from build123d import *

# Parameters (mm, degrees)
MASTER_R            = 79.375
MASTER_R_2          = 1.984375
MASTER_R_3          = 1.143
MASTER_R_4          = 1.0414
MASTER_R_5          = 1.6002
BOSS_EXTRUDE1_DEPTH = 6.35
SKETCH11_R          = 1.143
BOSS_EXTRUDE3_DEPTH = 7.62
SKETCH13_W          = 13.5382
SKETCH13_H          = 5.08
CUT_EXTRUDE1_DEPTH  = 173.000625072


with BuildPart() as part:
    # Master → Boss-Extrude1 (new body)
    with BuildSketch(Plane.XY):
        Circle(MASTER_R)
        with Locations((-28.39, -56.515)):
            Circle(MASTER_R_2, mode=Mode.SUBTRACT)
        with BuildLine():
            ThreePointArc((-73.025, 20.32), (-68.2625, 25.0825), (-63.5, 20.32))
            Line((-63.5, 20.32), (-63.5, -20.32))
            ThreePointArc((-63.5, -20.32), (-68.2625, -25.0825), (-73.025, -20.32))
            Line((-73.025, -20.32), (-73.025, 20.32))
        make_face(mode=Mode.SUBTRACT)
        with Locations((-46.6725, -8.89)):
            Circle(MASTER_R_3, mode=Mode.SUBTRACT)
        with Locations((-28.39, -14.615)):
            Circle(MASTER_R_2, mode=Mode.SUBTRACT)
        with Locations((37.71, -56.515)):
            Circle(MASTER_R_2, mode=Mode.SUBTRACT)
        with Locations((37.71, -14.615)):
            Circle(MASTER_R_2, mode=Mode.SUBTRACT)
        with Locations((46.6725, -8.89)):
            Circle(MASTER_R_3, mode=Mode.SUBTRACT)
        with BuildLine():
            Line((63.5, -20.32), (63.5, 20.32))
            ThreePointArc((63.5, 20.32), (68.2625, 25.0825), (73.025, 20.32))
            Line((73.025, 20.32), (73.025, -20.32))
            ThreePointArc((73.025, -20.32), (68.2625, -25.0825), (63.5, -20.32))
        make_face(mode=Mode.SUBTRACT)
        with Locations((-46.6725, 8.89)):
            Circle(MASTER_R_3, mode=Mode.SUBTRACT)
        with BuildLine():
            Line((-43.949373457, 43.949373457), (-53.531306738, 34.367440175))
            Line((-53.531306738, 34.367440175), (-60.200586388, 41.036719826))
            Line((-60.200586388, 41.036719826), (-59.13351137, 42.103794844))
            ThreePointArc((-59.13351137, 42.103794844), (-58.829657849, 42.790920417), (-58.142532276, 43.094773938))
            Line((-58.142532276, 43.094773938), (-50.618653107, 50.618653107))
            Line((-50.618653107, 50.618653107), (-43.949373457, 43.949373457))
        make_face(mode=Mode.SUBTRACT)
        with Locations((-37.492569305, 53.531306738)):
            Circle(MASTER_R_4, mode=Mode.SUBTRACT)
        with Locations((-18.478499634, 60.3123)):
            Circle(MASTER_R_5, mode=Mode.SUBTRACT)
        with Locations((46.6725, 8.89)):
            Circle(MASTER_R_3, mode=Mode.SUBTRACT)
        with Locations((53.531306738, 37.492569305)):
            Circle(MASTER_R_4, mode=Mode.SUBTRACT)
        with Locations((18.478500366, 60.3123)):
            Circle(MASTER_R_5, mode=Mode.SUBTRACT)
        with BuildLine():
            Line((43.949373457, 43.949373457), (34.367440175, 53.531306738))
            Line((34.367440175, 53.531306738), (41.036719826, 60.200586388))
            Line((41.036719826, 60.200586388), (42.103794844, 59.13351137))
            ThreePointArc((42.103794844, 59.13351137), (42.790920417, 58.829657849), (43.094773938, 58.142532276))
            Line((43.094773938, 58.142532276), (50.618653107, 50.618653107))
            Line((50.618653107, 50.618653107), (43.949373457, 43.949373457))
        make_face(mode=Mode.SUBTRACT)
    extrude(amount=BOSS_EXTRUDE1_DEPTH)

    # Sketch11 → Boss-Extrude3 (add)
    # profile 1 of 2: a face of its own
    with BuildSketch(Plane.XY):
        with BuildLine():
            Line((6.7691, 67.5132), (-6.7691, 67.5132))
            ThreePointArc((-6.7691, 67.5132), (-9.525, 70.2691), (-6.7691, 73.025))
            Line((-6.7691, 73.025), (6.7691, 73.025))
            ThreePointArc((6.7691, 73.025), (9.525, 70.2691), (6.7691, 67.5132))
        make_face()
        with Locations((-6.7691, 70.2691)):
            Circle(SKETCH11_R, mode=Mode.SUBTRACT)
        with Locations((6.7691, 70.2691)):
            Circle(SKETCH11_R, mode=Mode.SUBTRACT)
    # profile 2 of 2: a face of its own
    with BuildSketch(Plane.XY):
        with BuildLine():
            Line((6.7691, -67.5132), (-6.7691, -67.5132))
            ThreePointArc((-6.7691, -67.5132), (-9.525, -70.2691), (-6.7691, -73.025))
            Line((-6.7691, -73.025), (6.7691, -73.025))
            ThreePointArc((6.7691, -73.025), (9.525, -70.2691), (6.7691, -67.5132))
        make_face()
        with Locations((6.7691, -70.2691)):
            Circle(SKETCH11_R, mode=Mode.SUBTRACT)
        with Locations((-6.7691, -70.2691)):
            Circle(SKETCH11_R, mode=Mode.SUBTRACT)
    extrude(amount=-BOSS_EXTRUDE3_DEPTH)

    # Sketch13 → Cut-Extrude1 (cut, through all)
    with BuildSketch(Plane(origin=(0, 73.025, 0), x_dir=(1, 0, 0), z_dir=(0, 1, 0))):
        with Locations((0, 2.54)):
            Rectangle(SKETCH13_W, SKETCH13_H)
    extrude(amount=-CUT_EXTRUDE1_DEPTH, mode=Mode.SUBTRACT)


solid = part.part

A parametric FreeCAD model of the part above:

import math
import FreeCAD as App
import Part
import Sketcher

V = App.Vector
Q = App.Units.Quantity

doc = App.newDocument("Part")
params = doc.addObject("Spreadsheet::Sheet", "Params")
for row, (alias, value) in enumerate([
    ("sketch1_diameter", "6.25 in"),
    ("sketch1_diameter2", "0.09 in"),
    ("sketch1_diameter3", "0.15625 in"),
    ("sketch1_diameter4", "0.082 in"),
    ("sketch1_diameter5", "0.126 in"),
    ("pad1_length", "0.25 in"),
    ("sketch2_diameter", "0.09 in"),
    ("sketch2_width", "0.533 in"),
    ("pad2_length", "0.3 in"),
    ("sketch3_height", "0.2 in"),
    ("sketch3_width", "0.533 in"),
], start=1):
    params.set(f"A{row}", alias)
    params.set(f"B{row}", "=" + value)
    params.setAlias(f"B{row}", alias)

body = doc.addObject("PartDesign::Body", "Body")

sketch1 = body.newObject("Sketcher::SketchObject", "Sketch")
sketch1.AttachmentSupport = (doc.getObject("XY_Plane"), [""])
sketch1.MapMode = "FlatFace"
sketch1.addGeometry([
    Part.Circle(V(0, 0, 0), V(0, 0, 1), 79.4),
    Part.Circle(V(-28.4, -56.5, 0), V(0, 0, 1), 2),
    Part.LineSegment(V(-73, -20.3, 0), V(-73, 20.3, 0)),
    Part.ArcOfCircle(Part.Circle(V(-68.3, 20.3, 0), V(0, 0, 1), 4.8), math.radians(0), math.radians(180)),
    Part.LineSegment(V(-63.5, 20.3, 0), V(-63.5, -20.3, 0)),
    Part.ArcOfCircle(Part.Circle(V(-68.3, -20.3, 0), V(0, 0, 1), 4.8), math.radians(180), math.radians(360)),
    Part.Circle(V(-46.7, -8.9, 0), V(0, 0, 1), 1.1),
    Part.Circle(V(-28.4, -14.6, 0), V(0, 0, 1), 2),
    Part.Circle(V(37.7, -56.5, 0), V(0, 0, 1), 2),
    Part.Circle(V(37.7, -14.6, 0), V(0, 0, 1), 2),
    Part.Circle(V(46.7, -8.9, 0), V(0, 0, 1), 1.1),
    Part.ArcOfCircle(Part.Circle(V(68.3, -20.3, 0), V(0, 0, 1), 4.8), math.radians(180), math.radians(360)),
    Part.LineSegment(V(63.5, -20.3, 0), V(63.5, 20.3, 0)),
    Part.ArcOfCircle(Part.Circle(V(68.3, 20.3, 0), V(0, 0, 1), 4.8), math.radians(0), math.radians(180)),
    Part.LineSegment(V(73, 20.3, 0), V(73, -20.3, 0)),
    Part.Circle(V(-46.7, 8.9, 0), V(0, 0, 1), 1.1),
    Part.LineSegment(V(-50.6, 50.6, 0), V(-43.9, 43.9, 0)),
    Part.LineSegment(V(-43.9, 43.9, 0), V(-53.5, 34.4, 0)),
    Part.LineSegment(V(-53.5, 34.4, 0), V(-60.2, 41, 0)),
    Part.LineSegment(V(-60.2, 41, 0), V(-59.1, 42.1, 0)),
    Part.ArcOfCircle(Part.Circle(V(-58.1, 42.1, 0), V(0, 0, 1), 1), math.radians(93), math.radians(177)),
    Part.LineSegment(V(-58.1, 43.1, 0), V(-50.6, 50.6, 0)),
    Part.Circle(V(-37.5, 53.5, 0), V(0, 0, 1), 1),
    Part.Circle(V(-18.5, 60.3, 0), V(0, 0, 1), 1.6),
    Part.Circle(V(46.7, 8.9, 0), V(0, 0, 1), 1.1),
    Part.Circle(V(18.5, 60.3, 0), V(0, 0, 1), 1.6),
    Part.Circle(V(53.5, 37.5, 0), V(0, 0, 1), 1),
    Part.LineSegment(V(50.6, 50.6, 0), V(43.9, 43.9, 0)),
    Part.LineSegment(V(43.9, 43.9, 0), V(34.4, 53.5, 0)),
    Part.LineSegment(V(34.4, 53.5, 0), V(41, 60.2, 0)),
    Part.LineSegment(V(41, 60.2, 0), V(42.1, 59.1, 0)),
    Part.ArcOfCircle(Part.Circle(V(42.1, 58.1, 0), V(0, 0, 1), 1), math.radians(3), math.radians(87)),
    Part.LineSegment(V(43.1, 58.1, 0), V(50.6, 50.6, 0)),
], False)
sketch1.addConstraint([
    Sketcher.Constraint("Tangent", 2, 2, 3, 2),
    Sketcher.Constraint("Tangent", 3, 1, 4, 1),
    Sketcher.Constraint("Tangent", 4, 2, 5, 2),
    Sketcher.Constraint("Tangent", 5, 1, 2, 1),
    Sketcher.Constraint("Tangent", 11, 1, 12, 1),
    Sketcher.Constraint("Tangent", 12, 2, 13, 2),
    Sketcher.Constraint("Tangent", 13, 1, 14, 1),
    Sketcher.Constraint("Tangent", 14, 2, 11, 2),
    Sketcher.Constraint("Coincident", 16, 2, 17, 1),
    Sketcher.Constraint("Coincident", 17, 2, 18, 1),
    Sketcher.Constraint("Coincident", 18, 2, 19, 1),
    Sketcher.Constraint("Coincident", 19, 2, 20, 2),
    Sketcher.Constraint("Coincident", 20, 1, 21, 1),
    Sketcher.Constraint("Coincident", 21, 2, 16, 1),
    Sketcher.Constraint("Coincident", 27, 2, 28, 1),
    Sketcher.Constraint("Coincident", 28, 2, 29, 1),
    Sketcher.Constraint("Coincident", 29, 2, 30, 1),
    Sketcher.Constraint("Coincident", 30, 2, 31, 2),
    Sketcher.Constraint("Coincident", 31, 1, 32, 1),
    Sketcher.Constraint("Coincident", 32, 2, 27, 1),
    Sketcher.Constraint("Vertical", 2),
    Sketcher.Constraint("Vertical", 4),
    Sketcher.Constraint("Vertical", 12),
    Sketcher.Constraint("Vertical", 14),
    Sketcher.Constraint("Coincident", 0, 3, -1, 1),
    Sketcher.Constraint("Equal", 1, 7),
    Sketcher.Constraint("Equal", 7, 8),
    Sketcher.Constraint("Equal", 8, 9),
    Sketcher.Constraint("Equal", 6, 10),
    Sketcher.Constraint("Equal", 5, 11),
    Sketcher.Constraint("Equal", 10, 15),
    Sketcher.Constraint("Equal", 20, 22),
    Sketcher.Constraint("Equal", 15, 24),
    Sketcher.Constraint("Equal", 23, 25),
    Sketcher.Constraint("Equal", 22, 26),
    Sketcher.Constraint("Equal", 26, 31),
    Sketcher.Constraint("Symmetric", 3, 3, 11, 3, -1, 1),
    Sketcher.Constraint("Symmetric", 10, 3, 15, 3, -1, 1),
    Sketcher.Constraint("Symmetric", 6, 3, 24, 3, -1, 1),
    Sketcher.Constraint("Symmetric", 6, 3, 10, 3, -2),
    Sketcher.Constraint("Symmetric", 23, 3, 25, 3, -2),
    Sketcher.Constraint("Symmetric", 16, 2, 27, 2, -2),
    Sketcher.Constraint("Symmetric", 21, 2, 32, 2, -2),
    Sketcher.Constraint("Perpendicular", 16, 17),
    Sketcher.Constraint("Perpendicular", 17, 18),
    Sketcher.Constraint("Perpendicular", 18, 19),
    Sketcher.Constraint("Parallel", 19, 21),
    Sketcher.Constraint("Parallel", 21, 27),
    Sketcher.Constraint("Perpendicular", 27, 28),
    Sketcher.Constraint("Perpendicular", 28, 29),
    Sketcher.Constraint("Perpendicular", 29, 30),
    Sketcher.Constraint("Parallel", 30, 32),
    Sketcher.Constraint("Horizontal", 1, 3, 8, 3),
    Sketcher.Constraint("Horizontal", 7, 3, 9, 3),
    Sketcher.Constraint("Horizontal", 5, 3, 11, 3),
    Sketcher.Constraint("Horizontal", 3, 3, 13, 3),
    Sketcher.Constraint("Horizontal", 22, 3, 28, 2),
    Sketcher.Constraint("Vertical", 1, 3, 7, 3),
    Sketcher.Constraint("Vertical", 8, 3, 9, 3),
    Sketcher.Constraint("Equal", 16, 18),
    Sketcher.Constraint("Equal", 17, 28),
    Sketcher.Constraint("Equal", 27, 29),
    Sketcher.Constraint("Equal", 19, 30),
    Sketcher.Constraint("Equal", 21, 32),
    Sketcher.Constraint("Diameter", 0, Q("6.25 in")),
    Sketcher.Constraint("Diameter", 6, Q("0.09 in")),
    Sketcher.Constraint("Diameter", 1, Q("0.15625 in")),
    Sketcher.Constraint("Diameter", 22, Q("0.082 in")),
    Sketcher.Constraint("Diameter", 23, Q("0.126 in")),
    Sketcher.Constraint("DistanceY", 2, 1, 2, 2, Q("1.6 in")),
    Sketcher.Constraint("Radius", 3, Q("0.1875 in")),
    Sketcher.Constraint("DistanceX", 3, 1, -1, 1, Q("2.5 in")),
    Sketcher.Constraint("DistanceY", 6, 3, 15, 3, Q("0.7 in")),
    Sketcher.Constraint("DistanceX", 5, 3, 6, 3, Q("0.85 in")),
    Sketcher.Constraint("DistanceX", 15, 3, 23, 3, Q("1.11 in")),
    Sketcher.Constraint("DistanceY", 1, 3, -1, 1, Q("2.225 in")),
    Sketcher.Constraint("Distance", 17, Q("0.5335 in")),
    Sketcher.Constraint("DistanceY", -1, 1, 23, 3, Q("2.3745 in")),
    Sketcher.Constraint("DistanceX", 1, 3, -1, 1, Q("28.39 mm")),
    Sketcher.Constraint("DistanceY", 7, 3, -1, 1, Q("14.615 mm")),
    Sketcher.Constraint("DistanceX", -1, 1, 8, 3, Q("37.71 mm")),
    Sketcher.Constraint("DistanceY", 17, 2, 20, 3, Q("7.687099 mm")),
    Sketcher.Constraint("DistanceY", 20, 1, 16, 2, Q("0.8546 mm")),
    Sketcher.Constraint("Distance", 19, Q("1.509072 mm")),
    Sketcher.Constraint("DistanceY", -1, 1, 20, 3, Q("42.054539 mm")),
    Sketcher.Constraint("DistanceX", 22, 3, -1, 1, Q("37.492569 mm")),
    Sketcher.Constraint("DistanceY", -1, 1, 26, 3, Q("37.492569 mm")),
    Sketcher.Constraint("DistanceX", -1, 1, 31, 3, Q("42.054539 mm")),
    Sketcher.Constraint("DistanceX", -1, 1, 26, 3, Q("53.531307 mm")),
])
sketch1.setExpression("Constraints[64]", "Params.sketch1_diameter")
sketch1.setExpression("Constraints[65]", "Params.sketch1_diameter2")
sketch1.setExpression("Constraints[66]", "Params.sketch1_diameter3")
sketch1.setExpression("Constraints[67]", "Params.sketch1_diameter4")
sketch1.setExpression("Constraints[68]", "Params.sketch1_diameter5")
pad1 = body.newObject("PartDesign::Pad", "Pad")
pad1.Profile = sketch1
pad1.setExpression("Length", "Params.pad1_length")

sketch2 = body.newObject("Sketcher::SketchObject", "Sketch001")
sketch2.AttachmentSupport = (doc.getObject("XY_Plane"), [""])
sketch2.MapMode = "FlatFace"
sketch2.addGeometry([
    Part.LineSegment(V(-6.8, 67.5, 0), V(6.8, 67.5, 0)),
    Part.ArcOfCircle(Part.Circle(V(6.8, 70.3, 0), V(0, 0, 1), 2.8), math.radians(-90), math.radians(90)),
    Part.LineSegment(V(6.8, 73, 0), V(-6.8, 73, 0)),
    Part.ArcOfCircle(Part.Circle(V(-6.8, 70.3, 0), V(0, 0, 1), 2.8), math.radians(90), math.radians(270)),
    Part.Circle(V(6.8, 70.3, 0), V(0, 0, 1), 1.1),
    Part.Circle(V(-6.8, 70.3, 0), V(0, 0, 1), 1.1),
    Part.LineSegment(V(6.8, -67.5, 0), V(-6.8, -67.5, 0)),
    Part.ArcOfCircle(Part.Circle(V(-6.8, -70.3, 0), V(0, 0, 1), 2.8), math.radians(90), math.radians(270)),
    Part.LineSegment(V(-6.8, -73, 0), V(6.8, -73, 0)),
    Part.ArcOfCircle(Part.Circle(V(6.8, -70.3, 0), V(0, 0, 1), 2.8), math.radians(-90), math.radians(90)),
    Part.Circle(V(-6.8, -70.3, 0), V(0, 0, 1), 1.1),
    Part.Circle(V(6.8, -70.3, 0), V(0, 0, 1), 1.1),
], False)
sketch2.addConstraint([
    Sketcher.Constraint("Tangent", 0, 2, 1, 1),
    Sketcher.Constraint("Tangent", 1, 2, 2, 1),
    Sketcher.Constraint("Tangent", 2, 2, 3, 1),
    Sketcher.Constraint("Tangent", 3, 2, 0, 1),
    Sketcher.Constraint("Tangent", 6, 2, 7, 1),
    Sketcher.Constraint("Tangent", 7, 2, 8, 1),
    Sketcher.Constraint("Tangent", 8, 2, 9, 1),
    Sketcher.Constraint("Tangent", 9, 2, 6, 1),
    Sketcher.Constraint("Horizontal", 0),
    Sketcher.Constraint("Horizontal", 2),
    Sketcher.Constraint("Horizontal", 6),
    Sketcher.Constraint("Horizontal", 8),
    Sketcher.Constraint("Coincident", 4, 3, 1, 3),
    Sketcher.Constraint("Coincident", 5, 3, 3, 3),
    Sketcher.Constraint("Coincident", 10, 3, 7, 3),
    Sketcher.Constraint("Coincident", 11, 3, 9, 3),
    Sketcher.Constraint("Equal", 4, 5),
    Sketcher.Constraint("Equal", 3, 7),
    Sketcher.Constraint("Equal", 5, 10),
    Sketcher.Constraint("Equal", 10, 11),
    Sketcher.Constraint("Symmetric", 1, 3, 7, 3, -1, 1),
    Sketcher.Constraint("Vertical", 5, 3, 7, 3),
    Sketcher.Constraint("Vertical", 4, 3, 9, 3),
    Sketcher.Constraint("Diameter", 4, Q("0.09 in")),
    Sketcher.Constraint("Radius", 1, Q("0.1085 in")),
    Sketcher.Constraint("DistanceX", 0, 1, 0, 2, Q("0.533 in")),
    Sketcher.Constraint("DistanceY", -1, 1, 0, 2, Q("2.658 in")),
])
sketch2.setExpression("Constraints[23]", "Params.sketch2_diameter")
sketch2.setExpression("Constraints[25]", "Params.sketch2_width")
pad2 = body.newObject("PartDesign::Pad", "Pad001")
pad2.Profile = sketch2
pad2.setExpression("Length", "Params.pad2_length")
pad2.Reversed = True

sketch3 = body.newObject("Sketcher::SketchObject", "Sketch002")
sketch3.AttachmentSupport = (doc.getObject("XZ_Plane"), [""])
sketch3.MapMode = "FlatFace"
sketch3.AttachmentOffset = App.Placement(V(0, 0, -2.875 * 25.4), App.Rotation())
sketch3.addGeometry([
    Part.LineSegment(V(-7, -5, 0), V(-7, 0, 0)),
    Part.LineSegment(V(-7, 0, 0), V(7, 0, 0)),
    Part.LineSegment(V(7, 0, 0), V(7, -5, 0)),
    Part.LineSegment(V(7, -5, 0), V(-7, -5, 0)),
], False)
sketch3.addConstraint([
    Sketcher.Constraint("Coincident", 0, 2, 1, 1),
    Sketcher.Constraint("Coincident", 1, 2, 2, 1),
    Sketcher.Constraint("Coincident", 2, 2, 3, 1),
    Sketcher.Constraint("Coincident", 3, 2, 0, 1),
    Sketcher.Constraint("Vertical", 0),
    Sketcher.Constraint("Horizontal", 1),
    Sketcher.Constraint("Vertical", 2),
    Sketcher.Constraint("Horizontal", 3),
    Sketcher.Constraint("Symmetric", 0, 2, 1, 2, -1, 1),
    Sketcher.Constraint("DistanceY", 0, 1, 0, 2, Q("0.2 in")),
    Sketcher.Constraint("DistanceX", 1, 1, 1, 2, Q("0.533 in")),
])
sketch3.setExpression("Constraints[9]", "Params.sketch3_height")
sketch3.setExpression("Constraints[10]", "Params.sketch3_width")
pocket1 = body.newObject("PartDesign::Pocket", "Pocket")
pocket1.Profile = sketch3
pocket1.Type = "ThroughAll"
pocket1.Reversed = True

doc.recompute()
